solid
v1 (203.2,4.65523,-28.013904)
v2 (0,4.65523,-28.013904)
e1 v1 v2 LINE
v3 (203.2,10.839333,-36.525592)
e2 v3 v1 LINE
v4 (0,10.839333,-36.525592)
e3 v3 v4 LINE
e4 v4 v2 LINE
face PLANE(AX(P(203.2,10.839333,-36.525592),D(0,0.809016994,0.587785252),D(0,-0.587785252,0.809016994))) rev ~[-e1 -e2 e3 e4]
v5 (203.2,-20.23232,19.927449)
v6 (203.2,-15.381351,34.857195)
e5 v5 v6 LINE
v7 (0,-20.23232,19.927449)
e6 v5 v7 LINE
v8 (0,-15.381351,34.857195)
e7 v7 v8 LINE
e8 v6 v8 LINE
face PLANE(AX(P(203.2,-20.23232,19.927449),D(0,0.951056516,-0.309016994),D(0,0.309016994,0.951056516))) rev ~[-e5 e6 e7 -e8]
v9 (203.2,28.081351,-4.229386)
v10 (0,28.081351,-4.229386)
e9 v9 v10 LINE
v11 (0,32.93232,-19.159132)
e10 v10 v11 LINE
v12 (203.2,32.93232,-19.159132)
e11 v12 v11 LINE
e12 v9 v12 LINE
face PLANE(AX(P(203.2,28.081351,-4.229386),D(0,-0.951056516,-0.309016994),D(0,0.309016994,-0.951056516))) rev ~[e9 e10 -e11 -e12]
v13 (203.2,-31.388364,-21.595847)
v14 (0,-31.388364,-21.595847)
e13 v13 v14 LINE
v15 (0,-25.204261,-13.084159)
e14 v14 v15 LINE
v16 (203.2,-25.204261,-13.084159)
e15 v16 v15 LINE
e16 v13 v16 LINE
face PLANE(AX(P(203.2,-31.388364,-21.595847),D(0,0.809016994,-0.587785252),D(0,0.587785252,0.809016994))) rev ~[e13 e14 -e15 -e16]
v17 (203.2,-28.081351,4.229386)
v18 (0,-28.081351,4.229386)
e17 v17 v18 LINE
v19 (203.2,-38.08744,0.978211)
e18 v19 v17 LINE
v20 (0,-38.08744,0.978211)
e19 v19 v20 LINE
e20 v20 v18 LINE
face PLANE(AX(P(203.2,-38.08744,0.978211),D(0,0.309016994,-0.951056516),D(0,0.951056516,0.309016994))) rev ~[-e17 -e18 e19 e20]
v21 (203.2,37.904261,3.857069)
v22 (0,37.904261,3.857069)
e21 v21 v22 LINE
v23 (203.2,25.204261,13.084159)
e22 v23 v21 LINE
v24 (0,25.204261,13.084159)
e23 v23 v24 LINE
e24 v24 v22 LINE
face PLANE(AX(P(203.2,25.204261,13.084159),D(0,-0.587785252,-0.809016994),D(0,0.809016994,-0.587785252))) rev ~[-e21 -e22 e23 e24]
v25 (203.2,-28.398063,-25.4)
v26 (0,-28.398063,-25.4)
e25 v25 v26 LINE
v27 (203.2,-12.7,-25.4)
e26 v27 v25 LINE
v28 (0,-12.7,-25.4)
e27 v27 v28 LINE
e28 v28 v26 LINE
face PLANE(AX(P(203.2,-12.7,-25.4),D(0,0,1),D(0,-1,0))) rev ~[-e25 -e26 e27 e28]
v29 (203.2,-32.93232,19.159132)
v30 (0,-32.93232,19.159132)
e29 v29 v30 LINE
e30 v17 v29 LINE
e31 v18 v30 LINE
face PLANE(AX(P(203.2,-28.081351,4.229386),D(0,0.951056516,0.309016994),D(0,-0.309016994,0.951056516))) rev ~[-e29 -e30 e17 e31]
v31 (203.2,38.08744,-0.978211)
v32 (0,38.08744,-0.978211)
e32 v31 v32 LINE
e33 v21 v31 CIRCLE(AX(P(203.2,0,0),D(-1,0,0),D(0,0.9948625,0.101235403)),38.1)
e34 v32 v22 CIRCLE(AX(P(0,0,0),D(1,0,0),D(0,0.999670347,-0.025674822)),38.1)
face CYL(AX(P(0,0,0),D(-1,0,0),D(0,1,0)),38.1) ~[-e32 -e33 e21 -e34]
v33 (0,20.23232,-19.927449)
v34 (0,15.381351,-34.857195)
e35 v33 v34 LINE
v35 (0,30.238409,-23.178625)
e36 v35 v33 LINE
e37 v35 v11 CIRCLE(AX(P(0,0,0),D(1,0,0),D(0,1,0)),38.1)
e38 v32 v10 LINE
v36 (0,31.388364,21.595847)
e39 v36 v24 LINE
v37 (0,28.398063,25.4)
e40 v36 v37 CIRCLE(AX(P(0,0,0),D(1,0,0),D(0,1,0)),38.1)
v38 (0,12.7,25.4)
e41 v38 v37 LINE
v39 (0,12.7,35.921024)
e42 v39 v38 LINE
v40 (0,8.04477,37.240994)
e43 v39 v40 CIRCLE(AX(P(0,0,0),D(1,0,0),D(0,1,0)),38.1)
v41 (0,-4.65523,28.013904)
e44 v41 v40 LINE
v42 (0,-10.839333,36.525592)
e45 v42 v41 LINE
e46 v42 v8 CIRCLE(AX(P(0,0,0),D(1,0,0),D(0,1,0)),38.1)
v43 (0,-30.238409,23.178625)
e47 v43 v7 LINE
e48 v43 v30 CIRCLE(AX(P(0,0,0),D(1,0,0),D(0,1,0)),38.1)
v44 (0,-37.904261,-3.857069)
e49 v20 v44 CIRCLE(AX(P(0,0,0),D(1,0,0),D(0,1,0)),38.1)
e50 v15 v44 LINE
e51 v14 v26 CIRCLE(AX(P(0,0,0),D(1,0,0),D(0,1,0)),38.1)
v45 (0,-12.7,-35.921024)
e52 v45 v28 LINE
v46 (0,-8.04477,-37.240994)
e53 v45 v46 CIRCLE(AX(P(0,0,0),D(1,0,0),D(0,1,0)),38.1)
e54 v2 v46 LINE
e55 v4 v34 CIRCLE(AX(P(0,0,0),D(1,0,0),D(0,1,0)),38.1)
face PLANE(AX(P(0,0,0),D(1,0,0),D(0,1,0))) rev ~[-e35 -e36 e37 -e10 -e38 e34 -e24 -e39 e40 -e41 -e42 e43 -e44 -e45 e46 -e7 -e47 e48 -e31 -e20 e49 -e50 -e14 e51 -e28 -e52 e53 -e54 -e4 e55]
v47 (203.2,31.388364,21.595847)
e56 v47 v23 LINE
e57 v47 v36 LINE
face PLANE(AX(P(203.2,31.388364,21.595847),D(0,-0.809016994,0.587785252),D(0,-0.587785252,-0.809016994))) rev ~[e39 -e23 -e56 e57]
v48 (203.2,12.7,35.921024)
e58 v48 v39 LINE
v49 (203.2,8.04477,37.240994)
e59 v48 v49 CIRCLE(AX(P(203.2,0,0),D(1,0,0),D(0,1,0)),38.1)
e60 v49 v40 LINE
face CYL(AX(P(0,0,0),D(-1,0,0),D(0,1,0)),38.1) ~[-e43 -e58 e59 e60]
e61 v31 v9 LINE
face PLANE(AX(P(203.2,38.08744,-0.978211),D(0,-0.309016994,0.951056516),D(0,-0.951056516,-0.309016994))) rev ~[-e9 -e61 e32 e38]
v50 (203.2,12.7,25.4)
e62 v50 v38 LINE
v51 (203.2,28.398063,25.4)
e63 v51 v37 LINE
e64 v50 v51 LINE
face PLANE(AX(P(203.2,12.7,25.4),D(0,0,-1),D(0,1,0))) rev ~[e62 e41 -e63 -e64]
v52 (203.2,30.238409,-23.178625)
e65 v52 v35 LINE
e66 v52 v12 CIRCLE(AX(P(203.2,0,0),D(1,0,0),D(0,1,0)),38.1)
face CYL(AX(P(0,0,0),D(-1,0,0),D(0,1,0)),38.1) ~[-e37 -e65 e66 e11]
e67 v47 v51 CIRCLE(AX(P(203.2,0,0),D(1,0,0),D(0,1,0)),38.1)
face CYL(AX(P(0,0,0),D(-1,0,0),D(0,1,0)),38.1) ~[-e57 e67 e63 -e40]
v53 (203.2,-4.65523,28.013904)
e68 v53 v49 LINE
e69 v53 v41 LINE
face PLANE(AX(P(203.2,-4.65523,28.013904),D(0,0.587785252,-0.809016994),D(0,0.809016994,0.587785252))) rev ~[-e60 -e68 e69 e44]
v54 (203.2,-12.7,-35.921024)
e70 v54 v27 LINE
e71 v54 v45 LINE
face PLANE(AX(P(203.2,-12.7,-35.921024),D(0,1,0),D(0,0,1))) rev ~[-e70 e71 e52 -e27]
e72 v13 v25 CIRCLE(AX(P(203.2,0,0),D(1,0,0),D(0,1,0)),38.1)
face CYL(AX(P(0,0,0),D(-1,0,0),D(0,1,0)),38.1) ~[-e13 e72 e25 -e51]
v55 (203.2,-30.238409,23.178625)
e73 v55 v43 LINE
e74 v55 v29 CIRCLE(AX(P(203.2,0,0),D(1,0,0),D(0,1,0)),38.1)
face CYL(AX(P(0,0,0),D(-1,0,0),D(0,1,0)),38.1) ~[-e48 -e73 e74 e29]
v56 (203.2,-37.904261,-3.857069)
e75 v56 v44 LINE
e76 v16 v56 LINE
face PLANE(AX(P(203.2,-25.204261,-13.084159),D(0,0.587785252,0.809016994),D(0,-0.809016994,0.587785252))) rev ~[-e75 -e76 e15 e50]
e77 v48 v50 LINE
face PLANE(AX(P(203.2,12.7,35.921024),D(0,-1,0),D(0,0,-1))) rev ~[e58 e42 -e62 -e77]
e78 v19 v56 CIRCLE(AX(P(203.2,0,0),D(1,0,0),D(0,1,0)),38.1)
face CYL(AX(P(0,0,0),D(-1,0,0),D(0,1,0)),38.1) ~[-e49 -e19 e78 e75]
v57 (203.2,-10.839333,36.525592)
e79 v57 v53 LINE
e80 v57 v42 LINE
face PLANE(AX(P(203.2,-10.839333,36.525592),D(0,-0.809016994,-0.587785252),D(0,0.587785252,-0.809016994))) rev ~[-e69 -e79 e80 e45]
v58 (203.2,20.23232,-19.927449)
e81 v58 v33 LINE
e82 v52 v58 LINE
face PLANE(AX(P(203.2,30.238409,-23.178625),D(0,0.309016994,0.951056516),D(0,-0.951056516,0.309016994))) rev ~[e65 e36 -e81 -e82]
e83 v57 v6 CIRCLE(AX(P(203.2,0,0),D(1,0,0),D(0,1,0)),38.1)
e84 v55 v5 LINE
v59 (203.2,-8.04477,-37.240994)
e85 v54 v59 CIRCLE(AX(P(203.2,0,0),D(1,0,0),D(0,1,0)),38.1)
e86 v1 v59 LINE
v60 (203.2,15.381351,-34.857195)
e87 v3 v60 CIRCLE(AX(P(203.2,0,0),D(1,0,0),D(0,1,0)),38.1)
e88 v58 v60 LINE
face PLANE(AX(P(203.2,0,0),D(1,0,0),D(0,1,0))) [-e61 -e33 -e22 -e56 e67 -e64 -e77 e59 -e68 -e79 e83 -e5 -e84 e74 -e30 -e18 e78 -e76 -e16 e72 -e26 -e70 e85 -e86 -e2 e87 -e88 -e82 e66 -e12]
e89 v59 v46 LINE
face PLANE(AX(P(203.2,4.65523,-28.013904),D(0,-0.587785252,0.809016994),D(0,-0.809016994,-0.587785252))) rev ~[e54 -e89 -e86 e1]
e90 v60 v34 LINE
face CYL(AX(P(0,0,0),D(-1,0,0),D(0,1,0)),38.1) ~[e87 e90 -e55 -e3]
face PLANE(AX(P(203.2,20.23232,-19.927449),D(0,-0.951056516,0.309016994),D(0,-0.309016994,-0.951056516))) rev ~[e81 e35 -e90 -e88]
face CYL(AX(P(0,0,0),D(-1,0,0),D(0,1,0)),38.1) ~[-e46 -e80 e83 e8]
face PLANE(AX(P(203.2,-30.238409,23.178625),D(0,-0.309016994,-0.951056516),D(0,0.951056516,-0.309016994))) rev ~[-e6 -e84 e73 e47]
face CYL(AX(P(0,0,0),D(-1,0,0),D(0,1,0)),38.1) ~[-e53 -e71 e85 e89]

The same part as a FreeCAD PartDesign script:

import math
import FreeCAD as App
import Part
import Sketcher
Q = App.Units.Quantity

doc = App.newDocument("Part")
params = doc.addObject("Spreadsheet::Sheet", "Params")
for row, (alias, value) in enumerate([
    ("sketch1_diameter", "3 in"),
    ("pad1_length", "8 in"),
    ("sketch2_radius", "1.5 in"),
    ("pocket1_length", "9 in"),
], start=1):
    params.set(f"A{row}", alias)
    params.set(f"B{row}", "=" + value)
    params.setAlias(f"B{row}", alias)

body = doc.addObject("PartDesign::Body", "Body")

# Sketch on YZ plane
sketch1 = body.newObject("Sketcher::SketchObject", "Sketch")
sketch1.AttachmentSupport = (doc.getObject("YZ_Plane"), [""])
sketch1.MapMode = "FlatFace"
sketch1.addGeometry(Part.Circle(App.Vector(0, 0, 0), App.Vector(0, 0, 1), 38), False)
sketch1.addConstraint([
    Sketcher.Constraint("Coincident", 0, 3, -1, 1),
    Sketcher.Constraint("Diameter", 0, Q("3 in")),
])
sketch1.setExpression("Constraints[1]", "Params.sketch1_diameter")
pad1 = body.newObject("PartDesign::Pad", "Pad")
pad1.Profile = sketch1
pad1.setExpression("Length", "Params.pad1_length")

# Sketch on YZ plane
sketch2 = body.newObject("Sketcher::SketchObject", "Sketch001")
sketch2.AttachmentSupport = (doc.getObject("YZ_Plane"), [""])
sketch2.MapMode = "FlatFace"
sketch2.AttachmentOffset = App.Placement(App.Vector(0, 0, 8 * 25.4), App.Rotation())
sketch2.addGeometry([
    Part.LineSegment(App.Vector(13, 36, 0), App.Vector(13, 25, 0)),  # 0
    Part.LineSegment(App.Vector(13, 25, 0), App.Vector(28, 25, 0)),  # 1
    Part.ArcOfCircle(Part.Circle(App.Vector(0, 0, 0), App.Vector(0, 0, 1), 38), math.radians(42), math.radians(71)),  # 2
    Part.ArcOfCircle(Part.Circle(App.Vector(0, 0, 0), App.Vector(0, 0, 1), 38), math.radians(6), math.radians(35)),  # 3
    Part.LineSegment(App.Vector(31, 22, 0), App.Vector(25, 13, 0)),  # 4
    Part.LineSegment(App.Vector(25, 13, 0), App.Vector(38, 4, 0)),  # 5
    Part.ArcOfCircle(Part.Circle(App.Vector(0, 0, 0), App.Vector(0, 0, 1), 38), math.radians(-30), math.radians(-1)),  # 6
    Part.LineSegment(App.Vector(38, -1, 0), App.Vector(28, -4, 0)),  # 7
    Part.LineSegment(App.Vector(28, -4, 0), App.Vector(33, -19, 0)),  # 8
    Part.ArcOfCircle(Part.Circle(App.Vector(0, 0, 0), App.Vector(0, 0, 1), 38), math.radians(-66), math.radians(-37)),  # 9
    Part.LineSegment(App.Vector(30, -23, 0), App.Vector(20, -20, 0)),  # 10
    Part.LineSegment(App.Vector(20, -20, 0), App.Vector(15, -35, 0)),  # 11
    Part.LineSegment(App.Vector(-5, 28, 0), App.Vector(8, 37, 0)),  # 12
    Part.ArcOfCircle(Part.Circle(App.Vector(0, 0, 0), App.Vector(0, 0, 1), 38), math.radians(78), math.radians(107)),  # 13
    Part.LineSegment(App.Vector(-11, 37, 0), App.Vector(-5, 28, 0)),  # 14
    Part.LineSegment(App.Vector(-25, -13, 0), App.Vector(-38, -4, 0)),  # 15
    Part.ArcOfCircle(Part.Circle(App.Vector(0, 0, 0), App.Vector(0, 0, 1), 38), math.radians(-174), math.radians(-145)),  # 16
    Part.LineSegment(App.Vector(-31, -22, 0), App.Vector(-25, -13, 0)),  # 17
    Part.LineSegment(App.Vector(-13, -25, 0), App.Vector(-28, -25, 0)),  # 18
    Part.ArcOfCircle(Part.Circle(App.Vector(0, 0, 0), App.Vector(0, 0, 1), 38), math.radians(-138), math.radians(-109)),  # 19
    Part.LineSegment(App.Vector(-13, -36, 0), App.Vector(-13, -25, 0)),  # 20
    Part.ArcOfCircle(Part.Circle(App.Vector(0, 0, 0), App.Vector(0, 0, 1), 38), math.radians(-102), math.radians(-73)),  # 21
    Part.LineSegment(App.Vector(11, -37, 0), App.Vector(5, -28, 0)),  # 22
    Part.LineSegment(App.Vector(5, -28, 0), App.Vector(-8, -37, 0)),  # 23
    Part.LineSegment(App.Vector(-28, 4, 0), App.Vector(-33, 19, 0)),  # 24
    Part.ArcOfCircle(Part.Circle(App.Vector(0, 0, 0), App.Vector(0, 0, 1), 38), math.radians(150), math.radians(179)),  # 25
    Part.LineSegment(App.Vector(-38, 1, 0), App.Vector(-28, 4, 0)),  # 26
    Part.LineSegment(App.Vector(-20, 20, 0), App.Vector(-15, 35, 0)),  # 27
    Part.ArcOfCircle(Part.Circle(App.Vector(0, 0, 0), App.Vector(0, 0, 1), 38), math.radians(114), math.radians(143)),  # 28
    Part.LineSegment(App.Vector(-30, 23, 0), App.Vector(-20, 20, 0)),  # 29
], False)
sketch2.addConstraint([
    Sketcher.Constraint("Coincident", 0, 2, 1, 1),
    Sketcher.Constraint("Coincident", 1, 2, 2, 1),
    Sketcher.Constraint("Coincident", 2, 2, 0, 1),
    Sketcher.Constraint("Coincident", 3, 2, 4, 1),
    Sketcher.Constraint("Coincident", 4, 2, 5, 1),
    Sketcher.Constraint("Coincident", 5, 2, 3, 1),
    Sketcher.Constraint("Coincident", 6, 2, 7, 1),
    Sketcher.Constraint("Coincident", 7, 2, 8, 1),
    Sketcher.Constraint("Coincident", 8, 2, 6, 1),
    Sketcher.Constraint("Coincident", 9, 2, 10, 1),
    Sketcher.Constraint("Coincident", 10, 2, 11, 1),
    Sketcher.Constraint("Coincident", 11, 2, 9, 1),
    Sketcher.Constraint("Coincident", 12, 2, 13, 1),
    Sketcher.Constraint("Coincident", 13, 2, 14, 1),
    Sketcher.Constraint("Coincident", 14, 2, 12, 1),
    Sketcher.Constraint("Coincident", 15, 2, 16, 1),
    Sketcher.Constraint("Coincident", 16, 2, 17, 1),
    Sketcher.Constraint("Coincident", 17, 2, 15, 1),
    Sketcher.Constraint("Coincident", 18, 2, 19, 1),
    Sketcher.Constraint("Coincident", 19, 2, 20, 1),
    Sketcher.Constraint("Coincident", 20, 2, 18, 1),
    Sketcher.Constraint("Coincident", 21, 2, 22, 1),
    Sketcher.Constraint("Coincident", 22, 2, 23, 1),
    Sketcher.Constraint("Coincident", 23, 2, 21, 1),
    Sketcher.Constraint("Coincident", 24, 2, 25, 1),
    Sketcher.Constraint("Coincident", 25, 2, 26, 1),
    Sketcher.Constraint("Coincident", 26, 2, 24, 1),
    Sketcher.Constraint("Coincident", 27, 2, 28, 1),
    Sketcher.Constraint("Coincident", 28, 2, 29, 1),
    Sketcher.Constraint("Coincident", 29, 2, 27, 1),
    Sketcher.Constraint("Vertical", 0),
    Sketcher.Constraint("Horizontal", 1),
    Sketcher.Constraint("Horizontal", 18),
    Sketcher.Constraint("Vertical", 20),
    Sketcher.Constraint("Coincident", 2, 3, -1, 1),
    Sketcher.Constraint("Coincident", 3, 3, -1, 1),
    Sketcher.Constraint("Coincident", 6, 3, -1, 1),
    Sketcher.Constraint("Coincident", 9, 3, -1, 1),
    Sketcher.Constraint("Coincident", 13, 3, -1, 1),
    Sketcher.Constraint("Coincident", 16, 3, -1, 1),
    Sketcher.Constraint("Coincident", 19, 3, -1, 1),
    Sketcher.Constraint("Coincident", 21, 3, -1, 1),
    Sketcher.Constraint("Coincident", 25, 3, -1, 1),
    Sketcher.Constraint("Coincident", 28, 3, -1, 1),
    Sketcher.Constraint("Equal", 2, 3),
    Sketcher.Constraint("Equal", 3, 6),
    Sketcher.Constraint("Equal", 6, 9),
    Sketcher.Constraint("Equal", 9, 13),
    Sketcher.Constraint("Equal", 13, 16),
    Sketcher.Constraint("Equal", 16, 19),
    Sketcher.Constraint("Equal", 19, 21),
    Sketcher.Constraint("Equal", 21, 25),
    Sketcher.Constraint("Equal", 25, 28),
    Sketcher.Constraint("Symmetric", 4, 2, 17, 2, -1, 1),
    Sketcher.Constraint("Symmetric", 0, 2, 20, 2, -1, 1),
    Sketcher.Constraint("Symmetric", 14, 2, 22, 2, -1, 1),
    Sketcher.Constraint("Symmetric", 7, 2, 26, 2, -1, 1),
    Sketcher.Constraint("Symmetric", 10, 2, 29, 2, -1, 1),
    Sketcher.Constraint("Perpendicular", 4, 5),
    Sketcher.Constraint("Perpendicular", 7, 8),
    Sketcher.Constraint("Perpendicular", 10, 11),
    Sketcher.Constraint("Perpendicular", 12, 14),
    Sketcher.Constraint("Parallel", 5, 15),
    Sketcher.Constraint("Perpendicular", 15, 17),
    Sketcher.Constraint("Parallel", 14, 22),
    Sketcher.Constraint("Perpendicular", 22, 23),
    Sketcher.Constraint("Parallel", 8, 24),
    Sketcher.Constraint("Perpendicular", 24, 26),
    Sketcher.Constraint("Parallel", 11, 27),
    Sketcher.Constraint("Perpendicular", 27, 29),
    Sketcher.Constraint("Equal", 4, 7),
    Sketcher.Constraint("Equal", 5, 8),
    Sketcher.Constraint("Equal", 7, 10),
    Sketcher.Constraint("Equal", 8, 11),
    Sketcher.Constraint("Equal", 11, 12),
    Sketcher.Constraint("Equal", 10, 14),
    Sketcher.Constraint("Radius", 2, Q("1.5 in")),
    Sketcher.Constraint("DistanceY", -1, 1, 0, 2, Q("1 in")),
    Sketcher.Constraint("Angle", 4, Q("-126 deg")),
    Sketcher.Constraint("Angle", 7, Q("-162 deg")),
    Sketcher.Constraint("Angle", 10, Q("162 deg")),
    Sketcher.Constraint("Angle", 12, Q("36 deg")),
    Sketcher.Constraint("DistanceX", -1, 1, 0, 2, Q("0.5 in")),
    Sketcher.Constraint("DistanceX", 4, 2, 5, 2, Q("0.5 in")),
    Sketcher.Constraint("DistanceX", 10, 2, 8, 2, Q("0.5 in")),
])
sketch2.setExpression("Constraints[76]", "Params.sketch2_radius")
pocket1 = body.newObject("PartDesign::Pocket", "Pocket")
pocket1.Profile = sketch2
pocket1.setExpression("Length", "Params.pocket1_length")

doc.recompute()
